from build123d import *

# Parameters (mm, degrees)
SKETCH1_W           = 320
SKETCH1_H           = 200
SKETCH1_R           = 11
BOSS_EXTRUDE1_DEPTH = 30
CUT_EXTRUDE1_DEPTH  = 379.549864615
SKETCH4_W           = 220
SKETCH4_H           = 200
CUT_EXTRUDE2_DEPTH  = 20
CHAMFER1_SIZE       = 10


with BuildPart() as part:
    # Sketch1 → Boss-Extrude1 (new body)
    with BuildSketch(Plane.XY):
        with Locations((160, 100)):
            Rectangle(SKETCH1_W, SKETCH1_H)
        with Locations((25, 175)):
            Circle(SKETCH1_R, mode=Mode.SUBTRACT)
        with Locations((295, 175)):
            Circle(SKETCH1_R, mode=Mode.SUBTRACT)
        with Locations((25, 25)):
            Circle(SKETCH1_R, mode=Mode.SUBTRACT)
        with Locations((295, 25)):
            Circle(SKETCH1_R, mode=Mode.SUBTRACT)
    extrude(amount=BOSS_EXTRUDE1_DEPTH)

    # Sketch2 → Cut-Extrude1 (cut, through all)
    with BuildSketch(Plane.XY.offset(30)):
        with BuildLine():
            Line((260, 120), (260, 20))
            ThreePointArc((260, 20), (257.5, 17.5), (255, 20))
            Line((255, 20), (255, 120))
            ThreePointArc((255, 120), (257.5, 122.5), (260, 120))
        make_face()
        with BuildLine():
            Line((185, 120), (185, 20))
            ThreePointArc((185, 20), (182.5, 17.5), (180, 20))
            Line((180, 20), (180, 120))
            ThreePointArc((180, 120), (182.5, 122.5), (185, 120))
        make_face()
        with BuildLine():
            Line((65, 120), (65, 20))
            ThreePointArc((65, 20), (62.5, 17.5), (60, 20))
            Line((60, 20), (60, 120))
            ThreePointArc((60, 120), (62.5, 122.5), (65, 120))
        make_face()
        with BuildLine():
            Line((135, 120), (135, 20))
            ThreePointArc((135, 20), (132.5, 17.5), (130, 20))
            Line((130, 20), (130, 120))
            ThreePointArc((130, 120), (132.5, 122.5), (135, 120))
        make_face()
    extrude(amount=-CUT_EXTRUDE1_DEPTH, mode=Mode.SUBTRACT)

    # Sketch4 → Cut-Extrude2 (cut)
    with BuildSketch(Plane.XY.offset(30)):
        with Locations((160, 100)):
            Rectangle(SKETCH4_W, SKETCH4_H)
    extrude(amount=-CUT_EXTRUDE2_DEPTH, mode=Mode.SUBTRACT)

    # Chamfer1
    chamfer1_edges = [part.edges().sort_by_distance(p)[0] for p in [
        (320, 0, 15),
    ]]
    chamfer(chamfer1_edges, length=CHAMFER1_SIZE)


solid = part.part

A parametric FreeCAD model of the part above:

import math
import FreeCAD as App
import Part
import Sketcher
from FreeCAD import Vector


def edges_at(feature, points):
    """Names of the edges that pass closest to the given points."""
    edges = feature.Shape.Edges
    near = lambda p: min(range(len(edges)), key=lambda i: edges[i].distToShape(Part.Vertex(*p))[0])
    return sorted({f"Edge{near(p) + 1}" for p in points})

doc = App.newDocument("Part")
params = doc.addObject("Spreadsheet::Sheet", "Params")
for row, (alias, value) in enumerate([
    ("sketch1_diameter", "22 mm"),
    ("sketch1_width", "320 mm"),
    ("sketch1_height", "200 mm"),
    ("pad1_length", "30 mm"),
    ("sketch2_radius", "2.5 mm"),
    ("sketch2_height", "100 mm"),
    ("sketch3_width", "220 mm"),
    ("sketch3_height", "200 mm"),
    ("pocket2_length", "20 mm"),
    ("chamfer_size", "10 mm"),
], start=1):
    params.set(f"A{row}", alias)
    params.set(f"B{row}", "=" + value)
    params.setAlias(f"B{row}", alias)

body = doc.addObject("PartDesign::Body", "Body")

# Sketch on XY plane
sketch1 = doc.addObject("Sketcher::SketchObject", "Sketch")
body.addObject(sketch1)
sketch1.AttachmentSupport = (doc.XY_Plane, [""])
sketch1.MapMode = "FlatFace"
sketch1.addGeometry(Part.LineSegment(Vector(0, 200, 0), Vector(0, 0, 0)), False)
sketch1.addGeometry(Part.LineSegment(Vector(0, 0, 0), Vector(320, 0, 0)), False)
sketch1.addGeometry(Part.LineSegment(Vector(320, 0, 0), Vector(320, 200, 0)), False)
sketch1.addGeometry(Part.LineSegment(Vector(320, 200, 0), Vector(0, 200, 0)), False)
sketch1.addGeometry(Part.Circle(Vector(25, 25, 0), Vector(0, 0, 1), 11), False)
sketch1.addGeometry(Part.Circle(Vector(295, 25, 0), Vector(0, 0, 1), 11), False)
sketch1.addGeometry(Part.Circle(Vector(25, 175, 0), Vector(0, 0, 1), 11), False)
sketch1.addGeometry(Part.Circle(Vector(295, 175, 0), Vector(0, 0, 1), 11), False)
sketch1.addConstraint(Sketcher.Constraint("Coincident", 0, 2, 1, 1))
sketch1.addConstraint(Sketcher.Constraint("Coincident", 1, 2, 2, 1))
sketch1.addConstraint(Sketcher.Constraint("Coincident", 2, 2, 3, 1))
sketch1.addConstraint(Sketcher.Constraint("Coincident", 3, 2, 0, 1))
sketch1.addConstraint(Sketcher.Constraint("Vertical", 0))
sketch1.addConstraint(Sketcher.Constraint("Horizontal", 1))
sketch1.addConstraint(Sketcher.Constraint("Vertical", 2))
sketch1.addConstraint(Sketcher.Constraint("Horizontal", 3))
sketch1.addConstraint(Sketcher.Constraint("Coincident", 0, 2, -1, 1))
sketch1.addConstraint(Sketcher.Constraint("Equal", 4, 5))
sketch1.addConstraint(Sketcher.Constraint("Equal", 5, 6))
sketch1.addConstraint(Sketcher.Constraint("Equal", 6, 7))
sketch1.addConstraint(Sketcher.Constraint("Horizontal", 4, 3, 5, 3))
sketch1.addConstraint(Sketcher.Constraint("Horizontal", 6, 3, 7, 3))
sketch1.addConstraint(Sketcher.Constraint("Vertical", 4, 3, 6, 3))
sketch1.addConstraint(Sketcher.Constraint("Vertical", 5, 3, 7, 3))
sketch1.addConstraint(Sketcher.Constraint("Diameter", 4, 22.0))
sketch1.addConstraint(Sketcher.Constraint("DistanceX", 1, 1, 1, 2, 320.0))
sketch1.addConstraint(Sketcher.Constraint("DistanceY", 0, 2, 0, 1, 200.0))
sketch1.addConstraint(Sketcher.Constraint("DistanceX", -1, 1, 4, 3, 25.0))
sketch1.addConstraint(Sketcher.Constraint("DistanceY", -1, 1, 4, 3, 25.0))
sketch1.addConstraint(Sketcher.Constraint("DistanceX", -1, 1, 5, 3, 295.0))
sketch1.addConstraint(Sketcher.Constraint("DistanceY", -1, 1, 6, 3, 175.0))
sketch1.setExpression("Constraints[16]", "Params.sketch1_diameter")
sketch1.setExpression("Constraints[17]", "Params.sketch1_width")
sketch1.setExpression("Constraints[18]", "Params.sketch1_height")
pad1 = doc.addObject("PartDesign::Pad", "Pad")
body.addObject(pad1)
pad1.Profile = sketch1
pad1.setExpression("Length", "Params.pad1_length")

# Sketch on XY plane
sketch2 = doc.addObject("Sketcher::SketchObject", "Sketch001")
body.addObject(sketch2)
sketch2.AttachmentSupport = (doc.XY_Plane, [""])
sketch2.MapMode = "FlatFace"
sketch2.AttachmentOffset = App.Placement(Vector(0, 0, 30), App.Rotation())
sketch2.addGeometry(Part.LineSegment(Vector(260, 20, 0), Vector(260, 120, 0)), False)
sketch2.addGeometry(Part.ArcOfCircle(Part.Circle(Vector(257.5, 120, 0), Vector(0, 0, 1), 2.5), math.radians(0), math.radians(180)), False)
sketch2.addGeometry(Part.LineSegment(Vector(255, 120, 0), Vector(255, 20, 0)), False)
sketch2.addGeometry(Part.ArcOfCircle(Part.Circle(Vector(257.5, 20, 0), Vector(0, 0, 1), 2.5), math.radians(180), math.radians(360)), False)
sketch2.addGeometry(Part.LineSegment(Vector(185, 20, 0), Vector(185, 120, 0)), False)
sketch2.addGeometry(Part.ArcOfCircle(Part.Circle(Vector(182.5, 120, 0), Vector(0, 0, 1), 2.5), math.radians(0), math.radians(180)), False)
sketch2.addGeometry(Part.LineSegment(Vector(180, 120, 0), Vector(180, 20, 0)), False)
sketch2.addGeometry(Part.ArcOfCircle(Part.Circle(Vector(182.5, 20, 0), Vector(0, 0, 1), 2.5), math.radians(180), math.radians(360)), False)
sketch2.addGeometry(Part.LineSegment(Vector(65, 20, 0), Vector(65, 120, 0)), False)
sketch2.addGeometry(Part.ArcOfCircle(Part.Circle(Vector(62.5, 120, 0), Vector(0, 0, 1), 2.5), math.radians(0), math.radians(180)), False)
sketch2.addGeometry(Part.LineSegment(Vector(60, 120, 0), Vector(60, 20, 0)), False)
sketch2.addGeometry(Part.ArcOfCircle(Part.Circle(Vector(62.5, 20, 0), Vector(0, 0, 1), 2.5), math.radians(180), math.radians(360)), False)
sketch2.addGeometry(Part.LineSegment(Vector(135, 20, 0), Vector(135, 120, 0)), False)
sketch2.addGeometry(Part.ArcOfCircle(Part.Circle(Vector(132.5, 120, 0), Vector(0, 0, 1), 2.5), math.radians(0), math.radians(180)), False)
sketch2.addGeometry(Part.LineSegment(Vector(130, 120, 0), Vector(130, 20, 0)), False)
sketch2.addGeometry(Part.ArcOfCircle(Part.Circle(Vector(132.5, 20, 0), Vector(0, 0, 1), 2.5), math.radians(180), math.radians(360)), False)
sketch2.addConstraint(Sketcher.Constraint("Tangent", 0, 2, 1, 1))
sketch2.addConstraint(Sketcher.Constraint("Tangent", 1, 2, 2, 1))
sketch2.addConstraint(Sketcher.Constraint("Tangent", 2, 2, 3, 1))
sketch2.addConstraint(Sketcher.Constraint("Tangent", 3, 2, 0, 1))
sketch2.addConstraint(Sketcher.Constraint("Tangent", 4, 2, 5, 1))
sketch2.addConstraint(Sketcher.Constraint("Tangent", 5, 2, 6, 1))
sketch2.addConstraint(Sketcher.Constraint("Tangent", 6, 2, 7, 1))
sketch2.addConstraint(Sketcher.Constraint("Tangent", 7, 2, 4, 1))
sketch2.addConstraint(Sketcher.Constraint("Tangent", 8, 2, 9, 1))
sketch2.addConstraint(Sketcher.Constraint("Tangent", 9, 2, 10, 1))
sketch2.addConstraint(Sketcher.Constraint("Tangent", 10, 2, 11, 1))
sketch2.addConstraint(Sketcher.Constraint("Tangent", 11, 2, 8, 1))
sketch2.addConstraint(Sketcher.Constraint("Tangent", 12, 2, 13, 1))
sketch2.addConstraint(Sketcher.Constraint("Tangent", 13, 2, 14, 1))
sketch2.addConstraint(Sketcher.Constraint("Tangent", 14, 2, 15, 1))
sketch2.addConstraint(Sketcher.Constraint("Tangent", 15, 2, 12, 1))
sketch2.addConstraint(Sketcher.Constraint("Vertical", 0))
sketch2.addConstraint(Sketcher.Constraint("Vertical", 2))
sketch2.addConstraint(Sketcher.Constraint("Vertical", 4))
sketch2.addConstraint(Sketcher.Constraint("Vertical", 6))
sketch2.addConstraint(Sketcher.Constraint("Vertical", 8))
sketch2.addConstraint(Sketcher.Constraint("Vertical", 10))
sketch2.addConstraint(Sketcher.Constraint("Vertical", 12))
sketch2.addConstraint(Sketcher.Constraint("Vertical", 14))
sketch2.addConstraint(Sketcher.Constraint("Equal", 3, 5))
sketch2.addConstraint(Sketcher.Constraint("Equal", 7, 9))
sketch2.addConstraint(Sketcher.Constraint("Equal", 11, 13))
sketch2.addConstraint(Sketcher.Constraint("Horizontal", 1, 3, 5, 3))
sketch2.addConstraint(Sketcher.Constraint("Horizontal", 3, 3, 7, 3))
sketch2.addConstraint(Sketcher.Constraint("Horizontal", 5, 3, 9, 3))
sketch2.addConstraint(Sketcher.Constraint("Horizontal", 7, 3, 11, 3))
sketch2.addConstraint(Sketcher.Constraint("Horizontal", 9, 3, 13, 3))
sketch2.addConstraint(Sketcher.Constraint("Horizontal", 11, 3, 15, 3))
sketch2.addConstraint(Sketcher.Constraint("Radius", 1, 2.5))
sketch2.addConstraint(Sketcher.Constraint("DistanceY", 0, 1, 0, 2, 100.0))
sketch2.addConstraint(Sketcher.Constraint("DistanceY", -1, 1, 1, 3, 120.0))
sketch2.addConstraint(Sketcher.Constraint("DistanceX", -1, 1, 0, 2, 260.0))
sketch2.addConstraint(Sketcher.Constraint("DistanceX", -1, 1, 4, 2, 185.0))
sketch2.addConstraint(Sketcher.Constraint("DistanceX", -1, 1, 8, 2, 65.0))
sketch2.addConstraint(Sketcher.Constraint("DistanceX", -1, 1, 12, 2, 135.0))
sketch2.setExpression("Constraints[33]", "Params.sketch2_radius")
sketch2.setExpression("Constraints[34]", "Params.sketch2_height")
pocket1 = doc.addObject("PartDesign::Pocket", "Pocket")
body.addObject(pocket1)
pocket1.Profile = sketch2
pocket1.Type = "ThroughAll"

# Sketch on XY plane
sketch3 = doc.addObject("Sketcher::SketchObject", "Sketch002")
body.addObject(sketch3)
sketch3.AttachmentSupport = (doc.XY_Plane, [""])
sketch3.MapMode = "FlatFace"
sketch3.AttachmentOffset = App.Placement(Vector(0, 0, 30), App.Rotation())
sketch3.addGeometry(Part.LineSegment(Vector(50, 200, 0), Vector(50, 0, 0)), False)
sketch3.addGeometry(Part.LineSegment(Vector(50, 0, 0), Vector(270, 0, 0)), False)
sketch3.addGeometry(Part.LineSegment(Vector(270, 0, 0), Vector(270, 200, 0)), False)
sketch3.addGeometry(Part.LineSegment(Vector(270, 200, 0), Vector(50, 200, 0)), False)
sketch3.addConstraint(Sketcher.Constraint("Coincident", 0, 2, 1, 1))
sketch3.addConstraint(Sketcher.Constraint("Coincident", 1, 2, 2, 1))
sketch3.addConstraint(Sketcher.Constraint("Coincident", 2, 2, 3, 1))
sketch3.addConstraint(Sketcher.Constraint("Coincident", 3, 2, 0, 1))
sketch3.addConstraint(Sketcher.Constraint("Vertical", 0))
sketch3.addConstraint(Sketcher.Constraint("Horizontal", 1))
sketch3.addConstraint(Sketcher.Constraint("Vertical", 2))
sketch3.addConstraint(Sketcher.Constraint("Horizontal", 3))
sketch3.addConstraint(Sketcher.Constraint("PointOnObject", 0, 2, -1))
sketch3.addConstraint(Sketcher.Constraint("DistanceX", 1, 1, 1, 2, 220.0))
sketch3.addConstraint(Sketcher.Constraint("DistanceY", 0, 2, 0, 1, 200.0))
sketch3.addConstraint(Sketcher.Constraint("DistanceX", -1, 1, 0, 2, 50.0))
sketch3.setExpression("Constraints[9]", "Params.sketch3_width")
sketch3.setExpression("Constraints[10]", "Params.sketch3_height")
pocket2 = doc.addObject("PartDesign::Pocket", "Pocket001")
body.addObject(pocket2)
pocket2.Profile = sketch3
pocket2.setExpression("Length", "Params.pocket2_length")
doc.recompute()

chamfer = doc.addObject("PartDesign::Chamfer", "Chamfer")
body.addObject(chamfer)
chamfer.Base = (pocket2, edges_at(pocket2, [(320, 0, 15)]))
chamfer.setExpression("Size", "Params.chamfer_size")

doc.recompute()
